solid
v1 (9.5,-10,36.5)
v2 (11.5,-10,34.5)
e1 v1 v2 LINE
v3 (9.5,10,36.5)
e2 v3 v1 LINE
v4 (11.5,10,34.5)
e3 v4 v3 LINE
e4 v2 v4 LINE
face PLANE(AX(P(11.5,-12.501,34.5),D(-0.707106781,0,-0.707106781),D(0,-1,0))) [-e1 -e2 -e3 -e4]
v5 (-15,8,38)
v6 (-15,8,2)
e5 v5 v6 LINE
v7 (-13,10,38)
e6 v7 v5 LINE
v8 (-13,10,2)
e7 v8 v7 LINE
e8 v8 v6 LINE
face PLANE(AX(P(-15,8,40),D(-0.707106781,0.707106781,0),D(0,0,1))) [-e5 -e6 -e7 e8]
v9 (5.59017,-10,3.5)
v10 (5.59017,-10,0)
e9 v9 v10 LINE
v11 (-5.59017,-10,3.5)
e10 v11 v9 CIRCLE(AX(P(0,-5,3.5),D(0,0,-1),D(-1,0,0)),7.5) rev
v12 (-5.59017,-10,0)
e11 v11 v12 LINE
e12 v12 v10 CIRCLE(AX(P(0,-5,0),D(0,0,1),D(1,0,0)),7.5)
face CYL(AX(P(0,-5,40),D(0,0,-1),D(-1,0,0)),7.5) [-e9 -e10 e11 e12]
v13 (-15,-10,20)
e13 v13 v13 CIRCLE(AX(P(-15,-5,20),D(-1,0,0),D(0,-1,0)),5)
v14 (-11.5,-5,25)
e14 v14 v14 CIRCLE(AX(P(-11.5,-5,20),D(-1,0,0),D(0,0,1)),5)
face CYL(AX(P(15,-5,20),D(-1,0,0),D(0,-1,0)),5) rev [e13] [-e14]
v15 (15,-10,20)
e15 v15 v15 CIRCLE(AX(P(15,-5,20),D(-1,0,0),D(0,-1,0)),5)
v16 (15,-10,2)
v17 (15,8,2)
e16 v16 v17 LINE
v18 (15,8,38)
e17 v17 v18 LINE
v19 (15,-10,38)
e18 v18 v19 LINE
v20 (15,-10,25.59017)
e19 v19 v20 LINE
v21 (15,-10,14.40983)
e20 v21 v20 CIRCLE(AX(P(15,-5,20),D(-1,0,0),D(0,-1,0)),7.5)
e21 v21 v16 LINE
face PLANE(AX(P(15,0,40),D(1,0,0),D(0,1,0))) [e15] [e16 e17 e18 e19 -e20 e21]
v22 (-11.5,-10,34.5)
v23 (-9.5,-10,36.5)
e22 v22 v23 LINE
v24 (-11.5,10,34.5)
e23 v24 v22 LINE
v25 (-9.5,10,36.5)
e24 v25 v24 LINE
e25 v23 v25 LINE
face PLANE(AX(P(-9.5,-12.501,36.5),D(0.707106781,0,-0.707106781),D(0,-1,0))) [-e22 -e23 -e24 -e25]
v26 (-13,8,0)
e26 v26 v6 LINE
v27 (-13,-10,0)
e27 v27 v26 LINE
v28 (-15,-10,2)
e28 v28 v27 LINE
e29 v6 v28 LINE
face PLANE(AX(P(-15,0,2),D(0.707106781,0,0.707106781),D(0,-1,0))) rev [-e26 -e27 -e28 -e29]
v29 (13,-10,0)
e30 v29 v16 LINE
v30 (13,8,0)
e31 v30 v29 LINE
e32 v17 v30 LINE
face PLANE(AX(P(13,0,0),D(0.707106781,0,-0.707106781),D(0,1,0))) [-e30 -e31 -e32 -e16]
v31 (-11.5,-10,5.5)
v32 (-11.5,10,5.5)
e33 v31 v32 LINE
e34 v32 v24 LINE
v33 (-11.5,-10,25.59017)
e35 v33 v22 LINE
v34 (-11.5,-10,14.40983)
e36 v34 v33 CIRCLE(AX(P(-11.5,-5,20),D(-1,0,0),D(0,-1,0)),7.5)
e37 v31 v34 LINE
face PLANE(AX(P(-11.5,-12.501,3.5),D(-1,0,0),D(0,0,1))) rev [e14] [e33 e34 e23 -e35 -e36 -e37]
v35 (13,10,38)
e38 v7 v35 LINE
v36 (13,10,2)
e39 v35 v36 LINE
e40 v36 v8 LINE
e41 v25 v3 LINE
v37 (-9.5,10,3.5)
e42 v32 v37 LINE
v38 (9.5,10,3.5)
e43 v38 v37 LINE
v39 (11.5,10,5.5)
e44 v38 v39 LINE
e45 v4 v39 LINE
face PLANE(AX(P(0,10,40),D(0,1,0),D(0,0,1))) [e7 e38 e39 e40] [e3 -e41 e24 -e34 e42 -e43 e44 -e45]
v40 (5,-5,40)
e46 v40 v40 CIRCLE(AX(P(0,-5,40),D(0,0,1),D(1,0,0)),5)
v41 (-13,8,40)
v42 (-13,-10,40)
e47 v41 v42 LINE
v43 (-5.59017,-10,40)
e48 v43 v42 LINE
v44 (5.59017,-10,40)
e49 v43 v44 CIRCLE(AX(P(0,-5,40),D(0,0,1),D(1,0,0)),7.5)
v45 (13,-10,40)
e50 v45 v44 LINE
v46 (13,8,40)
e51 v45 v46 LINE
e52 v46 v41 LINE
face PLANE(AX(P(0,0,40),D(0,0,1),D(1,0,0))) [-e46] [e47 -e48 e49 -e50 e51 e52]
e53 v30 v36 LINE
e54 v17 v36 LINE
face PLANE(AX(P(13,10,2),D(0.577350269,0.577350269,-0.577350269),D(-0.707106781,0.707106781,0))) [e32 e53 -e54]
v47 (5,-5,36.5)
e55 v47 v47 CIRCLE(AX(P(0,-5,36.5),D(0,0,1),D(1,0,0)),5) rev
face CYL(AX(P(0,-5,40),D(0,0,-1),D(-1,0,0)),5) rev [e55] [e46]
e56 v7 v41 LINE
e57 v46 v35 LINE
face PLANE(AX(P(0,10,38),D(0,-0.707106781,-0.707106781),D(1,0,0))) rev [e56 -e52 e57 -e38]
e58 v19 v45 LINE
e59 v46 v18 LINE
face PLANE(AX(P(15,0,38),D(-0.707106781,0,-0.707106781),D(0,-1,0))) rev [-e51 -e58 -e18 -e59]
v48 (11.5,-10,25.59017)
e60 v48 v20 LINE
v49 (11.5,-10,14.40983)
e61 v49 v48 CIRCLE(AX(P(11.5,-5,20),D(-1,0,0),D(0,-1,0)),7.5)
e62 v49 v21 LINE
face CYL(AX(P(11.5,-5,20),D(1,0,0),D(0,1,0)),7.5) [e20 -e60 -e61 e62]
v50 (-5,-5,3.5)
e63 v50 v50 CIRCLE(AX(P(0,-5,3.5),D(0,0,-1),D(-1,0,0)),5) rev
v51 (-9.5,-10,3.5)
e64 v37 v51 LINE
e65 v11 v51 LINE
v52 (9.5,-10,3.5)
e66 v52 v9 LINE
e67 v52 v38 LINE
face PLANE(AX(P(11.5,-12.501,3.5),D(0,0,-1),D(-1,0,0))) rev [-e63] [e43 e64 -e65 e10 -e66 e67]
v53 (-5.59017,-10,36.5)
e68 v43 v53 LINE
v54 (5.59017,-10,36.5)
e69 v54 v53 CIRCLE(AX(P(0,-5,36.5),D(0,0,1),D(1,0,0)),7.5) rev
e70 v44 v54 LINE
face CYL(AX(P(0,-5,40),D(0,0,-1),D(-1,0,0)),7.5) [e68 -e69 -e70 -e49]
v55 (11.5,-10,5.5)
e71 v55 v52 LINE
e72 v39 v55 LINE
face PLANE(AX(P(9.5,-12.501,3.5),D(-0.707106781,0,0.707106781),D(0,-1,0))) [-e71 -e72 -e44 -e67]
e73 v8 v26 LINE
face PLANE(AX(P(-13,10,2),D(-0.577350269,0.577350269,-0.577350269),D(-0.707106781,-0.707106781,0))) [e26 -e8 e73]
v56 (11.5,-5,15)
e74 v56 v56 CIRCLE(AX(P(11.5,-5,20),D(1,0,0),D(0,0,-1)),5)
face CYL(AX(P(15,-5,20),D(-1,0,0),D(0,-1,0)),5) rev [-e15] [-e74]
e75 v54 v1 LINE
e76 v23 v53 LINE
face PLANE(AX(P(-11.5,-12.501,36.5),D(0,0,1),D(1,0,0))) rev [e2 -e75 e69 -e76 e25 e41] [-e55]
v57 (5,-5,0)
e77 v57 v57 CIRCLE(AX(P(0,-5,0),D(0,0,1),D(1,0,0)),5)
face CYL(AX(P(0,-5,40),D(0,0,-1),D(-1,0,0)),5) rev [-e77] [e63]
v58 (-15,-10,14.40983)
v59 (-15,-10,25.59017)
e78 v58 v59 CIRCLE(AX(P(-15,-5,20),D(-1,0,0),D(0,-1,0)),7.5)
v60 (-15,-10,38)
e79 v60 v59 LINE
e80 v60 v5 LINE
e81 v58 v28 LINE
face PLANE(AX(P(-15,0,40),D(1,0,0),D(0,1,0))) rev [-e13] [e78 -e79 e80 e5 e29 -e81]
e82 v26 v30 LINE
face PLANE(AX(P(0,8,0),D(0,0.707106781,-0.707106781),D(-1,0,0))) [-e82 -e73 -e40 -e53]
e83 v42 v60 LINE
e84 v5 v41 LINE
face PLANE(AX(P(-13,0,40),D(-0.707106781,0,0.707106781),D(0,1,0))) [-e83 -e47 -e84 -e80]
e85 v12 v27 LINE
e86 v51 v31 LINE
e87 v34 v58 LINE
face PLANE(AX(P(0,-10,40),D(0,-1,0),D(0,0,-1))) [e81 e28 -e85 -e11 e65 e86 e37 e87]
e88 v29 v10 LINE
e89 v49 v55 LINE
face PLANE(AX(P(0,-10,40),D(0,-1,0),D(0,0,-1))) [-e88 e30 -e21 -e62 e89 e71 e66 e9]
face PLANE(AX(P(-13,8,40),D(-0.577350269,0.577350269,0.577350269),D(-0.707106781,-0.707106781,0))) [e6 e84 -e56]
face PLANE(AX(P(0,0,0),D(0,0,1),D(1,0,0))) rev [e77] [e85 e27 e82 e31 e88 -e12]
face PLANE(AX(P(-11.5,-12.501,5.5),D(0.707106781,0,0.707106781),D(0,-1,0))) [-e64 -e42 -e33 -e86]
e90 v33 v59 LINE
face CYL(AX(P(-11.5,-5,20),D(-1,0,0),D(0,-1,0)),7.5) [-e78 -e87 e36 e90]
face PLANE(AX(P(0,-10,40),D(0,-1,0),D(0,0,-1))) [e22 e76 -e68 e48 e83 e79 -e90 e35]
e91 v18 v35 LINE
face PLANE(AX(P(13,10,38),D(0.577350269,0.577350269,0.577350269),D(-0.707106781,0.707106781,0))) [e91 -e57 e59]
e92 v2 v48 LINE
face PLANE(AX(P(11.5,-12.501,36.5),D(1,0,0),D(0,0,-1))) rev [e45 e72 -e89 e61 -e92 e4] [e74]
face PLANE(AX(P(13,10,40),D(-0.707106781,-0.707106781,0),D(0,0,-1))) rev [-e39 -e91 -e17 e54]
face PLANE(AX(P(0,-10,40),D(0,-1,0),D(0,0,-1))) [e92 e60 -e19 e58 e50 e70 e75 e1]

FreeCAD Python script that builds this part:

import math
import FreeCAD as App
import Part
import Sketcher
Q = App.Units.Quantity


def edges_at(feature, points):
    """Names of the edges that pass closest to the given points."""
    edges = feature.Shape.Edges
    near = lambda p: min(range(len(edges)), key=lambda i: edges[i].distToShape(Part.Vertex(*p))[0])
    return sorted({f"Edge{near(p) + 1}" for p in points})


def add_polygon(sketch, points):
    """Adds a closed chain of lines whose ends are joined by coincident constraints."""
    first, n = sketch.GeometryCount, len(points)
    for a, b in zip(points, points[1:] + points[:1]):
        sketch.addGeometry(Part.LineSegment(App.Vector(*a, 0), App.Vector(*b, 0)), False)
    for i in range(n):
        sketch.addConstraint(Sketcher.Constraint("Coincident", first + i, 2, first + (i + 1) % n, 1))

doc = App.newDocument("Part")
body = doc.addObject("PartDesign::Body", "Body")

sketch1 = body.newObject("Sketcher::SketchObject", "Sketch")
sketch1.AttachmentSupport = (doc.getObject("XY_Plane"), [""])
sketch1.MapMode = "FlatFace"
sketch1.addGeometry([
    Part.ArcOfCircle(Part.Circle(App.Vector(0, -5, 0), App.Vector(0, 0, 1), 8), math.radians(-138), math.radians(-42)),
    Part.LineSegment(App.Vector(6, -10, 0), App.Vector(15, -10, 0)),
    Part.LineSegment(App.Vector(15, -10, 0), App.Vector(15, 10, 0)),
    Part.LineSegment(App.Vector(15, 10, 0), App.Vector(-15, 10, 0)),
    Part.LineSegment(App.Vector(-15, 10, 0), App.Vector(-15, -10, 0)),
    Part.LineSegment(App.Vector(-15, -10, 0), App.Vector(-6, -10, 0)),
    Part.Circle(App.Vector(0, -5, 0), App.Vector(0, 0, 1), 5),
], False)
sketch1.addConstraint([
    Sketcher.Constraint("Coincident", 0, 2, 1, 1),
    Sketcher.Constraint("Coincident", 1, 2, 2, 1),
    Sketcher.Constraint("Coincident", 2, 2, 3, 1),
    Sketcher.Constraint("Coincident", 3, 2, 4, 1),
    Sketcher.Constraint("Coincident", 4, 2, 5, 1),
    Sketcher.Constraint("Coincident", 5, 2, 0, 1),
    Sketcher.Constraint("Horizontal", 1),
    Sketcher.Constraint("Vertical", 2),
    Sketcher.Constraint("Horizontal", 3),
    Sketcher.Constraint("Vertical", 4),
    Sketcher.Constraint("Horizontal", 5),
    Sketcher.Constraint("Coincident", 6, 3, 0, 3),
    Sketcher.Constraint("Symmetric", 1, 2, 3, 2, -1, 1),
    Sketcher.Constraint("Symmetric", 0, 2, 5, 2, -2),
    Sketcher.Constraint("Diameter", 6, Q("10 mm")),
    Sketcher.Constraint("Radius", 0, Q("7.5 mm")),
    Sketcher.Constraint("DistanceX", 3, 2, 3, 1, Q("30 mm")),
    Sketcher.Constraint("DistanceY", 2, 1, 2, 2, Q("20 mm")),
    Sketcher.Constraint("DistanceY", 0, 3, -1, 1, Q("5 mm")),
])
pad1 = body.newObject("PartDesign::Pad", "Pad")
pad1.Profile = sketch1
pad1.Length = 40

sketch2 = body.newObject("Sketcher::SketchObject", "Sketch001")
sketch2.AttachmentSupport = (doc.getObject("XZ_Plane"), [""])
sketch2.MapMode = "FlatFace"
sketch2.AttachmentOffset = App.Placement(App.Vector(0, 0, -10), App.Rotation())
add_polygon(sketch2, [(-12, 4), (-12, 36), (12, 36), (12, 4)])
sketch2.addConstraint([
    Sketcher.Constraint("Vertical", 0),
    Sketcher.Constraint("Horizontal", 1),
    Sketcher.Constraint("Vertical", 2),
    Sketcher.Constraint("Horizontal", 3),
    Sketcher.Constraint("DistanceX", 1, 1, 1, 2, Q("23 mm")),
    Sketcher.Constraint("DistanceY", 0, 1, 0, 2, Q("33 mm")),
    Sketcher.Constraint("DistanceX", 0, 2, -1, 1, Q("11.5 mm")),
    Sketcher.Constraint("DistanceY", -1, 1, 0, 2, Q("36.5 mm")),
])
pocket1 = body.newObject("PartDesign::Pocket", "Pocket")
pocket1.Profile = sketch2
pocket1.Type = "UpToFirst"
pocket1.Reversed = True

sketch3 = body.newObject("Sketcher::SketchObject", "Sketch002")
sketch3.AttachmentSupport = (doc.getObject("YZ_Plane"), [""])
sketch3.MapMode = "FlatFace"
sketch3.AttachmentOffset = App.Placement(App.Vector(0, 0, -15), App.Rotation())
sketch3.addGeometry([
    Part.LineSegment(App.Vector(-10, 26, 0), App.Vector(-10, 14, 0)),
    Part.ArcOfCircle(Part.Circle(App.Vector(-5, 20, 0), App.Vector(0, 0, 1), 8), math.radians(132), math.radians(228)),
], False)
sketch3.addConstraint([
    Sketcher.Constraint("Coincident", 0, 1, 1, 1),
    Sketcher.Constraint("Coincident", 1, 2, 0, 2),
    Sketcher.Constraint("Vertical", 0),
    Sketcher.Constraint("Radius", 1, Q("7.5 mm")),
    Sketcher.Constraint("DistanceX", 1, 3, -1, 1, Q("5 mm")),
    Sketcher.Constraint("DistanceY", -1, 1, 1, 3, Q("20 mm")),
    Sketcher.Constraint("DistanceX", 0, 1, -1, 1, Q("10 mm")),
])
pad2 = body.newObject("PartDesign::Pad", "Pad001")
pad2.Profile = sketch3
pad2.Length = 3.5
doc.recompute()

mirrored = body.newObject("PartDesign::Mirrored", "Mirrored")
mirrored.Originals = [pad2]
mirrored.MirrorPlane = (doc.getObject("YZ_Plane"), [""])
body.Tip = mirrored
doc.recompute()

chamfer = body.newObject("PartDesign::Chamfer", "Chamfer")
chamfer.Base = (mirrored, edges_at(mirrored, [
    (15, 0, 0),
    (-15, 10, 20),
    (15, 10, 20),
    (15, 0, 40),
    (0, 10, 40),
    (-15, 0, 40),
    (-11.5, 0, 36.5),
    (-11.5, 0, 3.5),
    (11.5, 0, 3.5),
    (11.5, 0, 36.5),
    (-15, 0, 0),
    (0, 10, 0),
]))
chamfer.Size = 2

sketch4 = body.newObject("Sketcher::SketchObject", "Sketch003")
sketch4.AttachmentSupport = (doc.getObject("YZ_Plane"), [""])
sketch4.MapMode = "FlatFace"
sketch4.AttachmentOffset = App.Placement(App.Vector(0, 0, -15), App.Rotation())
sketch4.addGeometry(Part.Circle(App.Vector(-5, 20, 0), App.Vector(0, 0, 1), 5), False)
sketch4.addConstraint([
    Sketcher.Constraint("Diameter", 0, Q("10 mm")),
    Sketcher.Constraint("DistanceX", 0, 3, -1, 1, Q("5 mm")),
    Sketcher.Constraint("DistanceY", -1, 1, 0, 3, Q("20 mm")),
])
pocket2 = body.newObject("PartDesign::Pocket", "Pocket001")
pocket2.Profile = sketch4
pocket2.Type = "ThroughAll"
pocket2.Reversed = True

doc.recompute()
